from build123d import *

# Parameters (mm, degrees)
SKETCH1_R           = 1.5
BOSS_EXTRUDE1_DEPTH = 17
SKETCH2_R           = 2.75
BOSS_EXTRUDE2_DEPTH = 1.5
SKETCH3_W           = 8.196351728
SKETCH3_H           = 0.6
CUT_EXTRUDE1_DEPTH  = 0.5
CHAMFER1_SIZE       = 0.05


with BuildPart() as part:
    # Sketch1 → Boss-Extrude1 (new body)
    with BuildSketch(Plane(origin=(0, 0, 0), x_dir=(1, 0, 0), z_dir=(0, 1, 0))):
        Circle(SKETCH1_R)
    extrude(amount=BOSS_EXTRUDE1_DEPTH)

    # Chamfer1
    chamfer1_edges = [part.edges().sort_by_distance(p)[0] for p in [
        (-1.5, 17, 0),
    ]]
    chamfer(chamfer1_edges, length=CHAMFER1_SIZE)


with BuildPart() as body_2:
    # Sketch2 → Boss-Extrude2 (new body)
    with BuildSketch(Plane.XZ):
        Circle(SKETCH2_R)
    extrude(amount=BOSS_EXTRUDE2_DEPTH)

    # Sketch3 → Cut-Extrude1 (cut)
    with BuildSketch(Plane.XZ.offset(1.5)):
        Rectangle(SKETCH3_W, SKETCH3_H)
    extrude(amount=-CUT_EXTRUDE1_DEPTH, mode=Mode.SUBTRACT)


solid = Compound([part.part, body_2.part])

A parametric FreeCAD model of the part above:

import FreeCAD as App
import Part
import Sketcher
Q = App.Units.Quantity


def edges_at(feature, points):
    """Names of the edges that pass closest to the given points."""
    edges = feature.Shape.Edges
    near = lambda p: min(range(len(edges)), key=lambda i: edges[i].distToShape(Part.Vertex(*p))[0])
    return sorted({f"Edge{near(p) + 1}" for p in points})


def add_polygon(sketch, points):
    """Adds a closed chain of lines whose ends are joined by coincident constraints."""
    first, n = sketch.GeometryCount, len(points)
    for a, b in zip(points, points[1:] + points[:1]):
        sketch.addGeometry(Part.LineSegment(App.Vector(*a, 0), App.Vector(*b, 0)), False)
    for i in range(n):
        sketch.addConstraint(Sketcher.Constraint("Coincident", first + i, 2, first + (i + 1) % n, 1))

doc = App.newDocument("Part")
body = doc.addObject("PartDesign::Body", "Body")

sketch1 = body.newObject("Sketcher::SketchObject", "Sketch")
sketch1.AttachmentSupport = (doc.getObject("XZ_Plane"), [""])
sketch1.MapMode = "FlatFace"
sketch1.addGeometry(Part.Circle(App.Vector(0, 0, 0), App.Vector(0, 0, 1), 1.5), False)
sketch1.addConstraint([
    Sketcher.Constraint("Coincident", 0, 3, -1, 1),
    Sketcher.Constraint("Diameter", 0, Q("3 mm")),
])
pad1 = body.newObject("PartDesign::Pad", "Pad")
pad1.Profile = sketch1
pad1.Length = 17
pad1.Reversed = True
doc.recompute()

chamfer = body.newObject("PartDesign::Chamfer", "Chamfer")
chamfer.Base = (pad1, edges_at(pad1, [(-1.5, 17, 0)]))
chamfer.Size = 0.05
body2 = doc.addObject("PartDesign::Body", "Body001")

sketch2 = body2.newObject("Sketcher::SketchObject", "Sketch001")
sketch2.AttachmentSupport = (doc.getObject("XZ_Plane001"), [""])
sketch2.MapMode = "FlatFace"
sketch2.addGeometry(Part.Circle(App.Vector(0, 0, 0), App.Vector(0, 0, 1), 2.8), False)
sketch2.addConstraint([
    Sketcher.Constraint("Coincident", 0, 3, -1, 1),
    Sketcher.Constraint("Diameter", 0, Q("5.5 mm")),
])
pad2 = body2.newObject("PartDesign::Pad", "Pad001")
pad2.Profile = sketch2
pad2.Length = 1.5

sketch3 = body2.newObject("Sketcher::SketchObject", "Sketch002")
sketch3.AttachmentSupport = (doc.getObject("XZ_Plane001"), [""])
sketch3.MapMode = "FlatFace"
sketch3.AttachmentOffset = App.Placement(App.Vector(0, 0, 1.5), App.Rotation())
add_polygon(sketch3, [(-4.1, 0.3), (-4.1, -0.3), (4.1, -0.3), (4.1, 0.3)])
sketch3.addConstraint([
    Sketcher.Constraint("Vertical", 0),
    Sketcher.Constraint("Horizontal", 1),
    Sketcher.Constraint("Vertical", 2),
    Sketcher.Constraint("Horizontal", 3),
    Sketcher.Constraint("Symmetric", 0, 2, 2, 2, -1, 1),
    Sketcher.Constraint("DistanceY", 0, 2, 0, 1, Q("0.6 mm")),
    Sketcher.Constraint("DistanceX", 1, 1, 1, 2, Q("8.196352 mm")),
])
pocket1 = body2.newObject("PartDesign::Pocket", "Pocket")
pocket1.Profile = sketch3
pocket1.Length = 0.5

doc.recompute()
